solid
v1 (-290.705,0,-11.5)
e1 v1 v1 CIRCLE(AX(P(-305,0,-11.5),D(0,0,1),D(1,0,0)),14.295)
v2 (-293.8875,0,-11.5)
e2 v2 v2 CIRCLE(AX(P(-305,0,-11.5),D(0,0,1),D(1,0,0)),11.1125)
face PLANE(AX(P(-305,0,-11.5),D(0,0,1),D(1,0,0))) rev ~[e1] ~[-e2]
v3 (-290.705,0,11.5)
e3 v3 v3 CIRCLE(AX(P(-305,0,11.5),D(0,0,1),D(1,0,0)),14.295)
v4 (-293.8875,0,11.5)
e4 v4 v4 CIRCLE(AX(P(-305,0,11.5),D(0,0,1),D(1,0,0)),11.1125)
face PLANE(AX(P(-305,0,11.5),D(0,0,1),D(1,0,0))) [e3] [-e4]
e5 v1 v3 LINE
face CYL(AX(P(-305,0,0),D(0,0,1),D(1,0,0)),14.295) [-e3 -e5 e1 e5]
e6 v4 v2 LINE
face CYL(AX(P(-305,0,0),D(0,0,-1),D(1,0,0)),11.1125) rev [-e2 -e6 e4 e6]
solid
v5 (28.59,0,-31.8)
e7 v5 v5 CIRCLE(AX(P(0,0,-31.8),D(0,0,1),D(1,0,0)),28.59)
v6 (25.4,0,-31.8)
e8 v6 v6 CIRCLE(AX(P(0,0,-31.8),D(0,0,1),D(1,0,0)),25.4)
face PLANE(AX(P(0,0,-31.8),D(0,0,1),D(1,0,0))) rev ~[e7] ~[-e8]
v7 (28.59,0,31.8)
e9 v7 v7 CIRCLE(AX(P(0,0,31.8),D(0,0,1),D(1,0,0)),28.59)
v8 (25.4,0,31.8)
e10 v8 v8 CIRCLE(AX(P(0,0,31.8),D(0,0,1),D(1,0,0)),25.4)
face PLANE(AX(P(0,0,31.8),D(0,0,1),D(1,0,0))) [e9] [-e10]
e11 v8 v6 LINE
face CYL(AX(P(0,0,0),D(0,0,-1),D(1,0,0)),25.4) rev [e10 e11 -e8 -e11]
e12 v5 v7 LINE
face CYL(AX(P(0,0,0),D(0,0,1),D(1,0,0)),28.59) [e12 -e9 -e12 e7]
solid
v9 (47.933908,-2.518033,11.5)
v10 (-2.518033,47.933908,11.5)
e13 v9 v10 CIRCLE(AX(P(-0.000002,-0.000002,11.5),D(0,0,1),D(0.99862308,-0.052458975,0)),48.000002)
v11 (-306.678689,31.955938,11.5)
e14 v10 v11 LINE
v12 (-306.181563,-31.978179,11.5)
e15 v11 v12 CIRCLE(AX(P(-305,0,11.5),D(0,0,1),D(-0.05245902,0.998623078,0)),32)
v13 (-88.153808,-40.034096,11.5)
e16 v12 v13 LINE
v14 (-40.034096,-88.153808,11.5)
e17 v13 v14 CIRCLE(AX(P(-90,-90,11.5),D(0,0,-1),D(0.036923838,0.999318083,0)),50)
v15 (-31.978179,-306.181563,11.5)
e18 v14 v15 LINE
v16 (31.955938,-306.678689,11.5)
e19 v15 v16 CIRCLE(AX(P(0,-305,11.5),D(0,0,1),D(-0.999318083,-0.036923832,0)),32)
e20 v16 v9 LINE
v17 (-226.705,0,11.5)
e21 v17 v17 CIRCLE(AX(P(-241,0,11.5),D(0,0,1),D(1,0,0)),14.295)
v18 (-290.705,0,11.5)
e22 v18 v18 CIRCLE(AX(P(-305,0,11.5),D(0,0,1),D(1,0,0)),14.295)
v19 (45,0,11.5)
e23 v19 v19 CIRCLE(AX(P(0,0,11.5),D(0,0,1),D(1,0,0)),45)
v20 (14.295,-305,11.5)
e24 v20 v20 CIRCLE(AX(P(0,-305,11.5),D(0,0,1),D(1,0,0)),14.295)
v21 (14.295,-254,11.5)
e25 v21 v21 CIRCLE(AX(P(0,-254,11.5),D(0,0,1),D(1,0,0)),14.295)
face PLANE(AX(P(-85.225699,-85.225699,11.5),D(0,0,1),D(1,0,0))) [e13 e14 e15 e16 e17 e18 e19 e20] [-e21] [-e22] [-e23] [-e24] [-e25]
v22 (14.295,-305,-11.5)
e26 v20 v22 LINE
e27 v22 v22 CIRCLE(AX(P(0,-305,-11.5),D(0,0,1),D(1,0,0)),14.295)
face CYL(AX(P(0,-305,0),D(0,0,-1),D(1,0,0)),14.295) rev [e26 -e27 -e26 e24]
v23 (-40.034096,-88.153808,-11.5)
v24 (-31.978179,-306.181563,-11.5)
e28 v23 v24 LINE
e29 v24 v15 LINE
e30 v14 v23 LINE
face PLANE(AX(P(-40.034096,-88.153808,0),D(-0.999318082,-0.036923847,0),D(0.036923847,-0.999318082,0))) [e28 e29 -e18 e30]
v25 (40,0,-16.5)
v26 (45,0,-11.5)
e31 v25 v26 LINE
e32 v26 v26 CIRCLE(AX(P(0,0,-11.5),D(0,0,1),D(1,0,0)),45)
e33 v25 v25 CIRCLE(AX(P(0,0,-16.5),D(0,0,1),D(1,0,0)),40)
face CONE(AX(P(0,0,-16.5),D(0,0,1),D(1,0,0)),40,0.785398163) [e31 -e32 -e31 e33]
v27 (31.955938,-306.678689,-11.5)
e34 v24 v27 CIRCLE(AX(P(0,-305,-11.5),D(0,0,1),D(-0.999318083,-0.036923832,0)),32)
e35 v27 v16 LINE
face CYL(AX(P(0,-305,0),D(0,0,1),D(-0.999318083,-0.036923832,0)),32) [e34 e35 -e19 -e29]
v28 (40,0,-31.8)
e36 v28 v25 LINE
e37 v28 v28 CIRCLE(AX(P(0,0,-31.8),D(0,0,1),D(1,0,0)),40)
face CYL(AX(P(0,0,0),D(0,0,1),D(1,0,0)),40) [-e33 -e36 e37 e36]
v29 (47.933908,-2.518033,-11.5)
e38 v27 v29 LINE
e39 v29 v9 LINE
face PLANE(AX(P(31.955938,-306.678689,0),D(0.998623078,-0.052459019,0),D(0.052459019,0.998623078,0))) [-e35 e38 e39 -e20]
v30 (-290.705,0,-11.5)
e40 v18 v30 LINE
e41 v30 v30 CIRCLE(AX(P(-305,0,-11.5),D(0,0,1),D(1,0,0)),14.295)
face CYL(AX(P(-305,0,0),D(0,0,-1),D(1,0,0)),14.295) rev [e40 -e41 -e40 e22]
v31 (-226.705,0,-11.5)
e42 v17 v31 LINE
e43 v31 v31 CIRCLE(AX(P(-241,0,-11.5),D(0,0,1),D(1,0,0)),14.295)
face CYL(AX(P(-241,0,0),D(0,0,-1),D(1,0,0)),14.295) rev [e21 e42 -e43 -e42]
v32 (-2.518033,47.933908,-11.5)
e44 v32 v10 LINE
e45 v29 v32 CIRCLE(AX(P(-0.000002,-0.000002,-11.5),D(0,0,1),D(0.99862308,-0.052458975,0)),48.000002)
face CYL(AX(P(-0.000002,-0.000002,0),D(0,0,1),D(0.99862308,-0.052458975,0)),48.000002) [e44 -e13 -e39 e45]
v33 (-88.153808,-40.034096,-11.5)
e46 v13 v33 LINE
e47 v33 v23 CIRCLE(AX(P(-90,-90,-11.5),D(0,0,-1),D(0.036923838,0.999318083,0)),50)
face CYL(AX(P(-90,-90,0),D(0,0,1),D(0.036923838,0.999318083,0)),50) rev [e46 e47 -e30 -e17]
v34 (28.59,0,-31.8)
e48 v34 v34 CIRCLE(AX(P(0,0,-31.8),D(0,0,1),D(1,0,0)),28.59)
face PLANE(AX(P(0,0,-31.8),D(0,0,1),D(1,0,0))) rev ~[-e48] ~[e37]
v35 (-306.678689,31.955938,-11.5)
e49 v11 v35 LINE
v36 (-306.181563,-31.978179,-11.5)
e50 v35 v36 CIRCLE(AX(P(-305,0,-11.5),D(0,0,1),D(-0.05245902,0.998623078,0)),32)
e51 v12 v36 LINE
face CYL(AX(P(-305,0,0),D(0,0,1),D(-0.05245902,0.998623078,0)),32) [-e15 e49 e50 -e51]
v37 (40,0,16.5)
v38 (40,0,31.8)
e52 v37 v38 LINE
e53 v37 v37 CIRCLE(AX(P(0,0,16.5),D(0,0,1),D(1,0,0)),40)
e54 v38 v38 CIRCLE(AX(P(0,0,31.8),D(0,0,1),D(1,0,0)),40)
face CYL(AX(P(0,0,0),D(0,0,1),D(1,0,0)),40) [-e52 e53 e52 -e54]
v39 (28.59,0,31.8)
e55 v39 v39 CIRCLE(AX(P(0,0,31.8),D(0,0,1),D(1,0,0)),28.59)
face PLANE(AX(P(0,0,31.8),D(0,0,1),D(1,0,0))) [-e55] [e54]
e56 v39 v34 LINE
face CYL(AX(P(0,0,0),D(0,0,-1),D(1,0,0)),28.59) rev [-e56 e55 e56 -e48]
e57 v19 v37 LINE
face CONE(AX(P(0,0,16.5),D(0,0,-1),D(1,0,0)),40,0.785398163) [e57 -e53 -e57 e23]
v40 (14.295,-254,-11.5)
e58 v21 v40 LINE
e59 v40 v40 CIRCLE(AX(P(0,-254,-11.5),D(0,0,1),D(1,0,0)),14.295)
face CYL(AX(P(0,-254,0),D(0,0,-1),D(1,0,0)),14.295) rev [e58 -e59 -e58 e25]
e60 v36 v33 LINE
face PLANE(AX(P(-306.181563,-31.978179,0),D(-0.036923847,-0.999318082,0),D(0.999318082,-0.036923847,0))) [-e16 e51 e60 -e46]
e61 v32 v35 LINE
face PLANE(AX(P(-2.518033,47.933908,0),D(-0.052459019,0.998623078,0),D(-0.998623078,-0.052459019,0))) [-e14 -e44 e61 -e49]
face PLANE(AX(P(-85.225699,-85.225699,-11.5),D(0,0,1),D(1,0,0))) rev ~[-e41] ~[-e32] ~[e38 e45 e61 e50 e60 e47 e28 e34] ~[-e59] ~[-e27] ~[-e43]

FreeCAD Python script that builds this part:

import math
import FreeCAD as App
import Part
import Sketcher
Q = App.Units.Quantity


def edges_at(feature, points):
    """Names of the edges that pass closest to the given points."""
    edges = feature.Shape.Edges
    near = lambda p: min(range(len(edges)), key=lambda i: edges[i].distToShape(Part.Vertex(*p))[0])
    return sorted({f"Edge{near(p) + 1}" for p in points})

doc = App.newDocument("Part")
body = doc.addObject("PartDesign::Body", "Body")

sketch1 = body.newObject("Sketcher::SketchObject", "Sketch")
sketch1.AttachmentSupport = (doc.getObject("XY_Plane"), [""])
sketch1.MapMode = "FlatFace"
sketch1.addGeometry([
    Part.LineSegment(App.Vector(-40, -88, 0), App.Vector(-32, -306, 0)),
    Part.ArcOfCircle(Part.Circle(App.Vector(0, -305, 0), App.Vector(0, 0, 1), 32), math.radians(-178), math.radians(-3)),
    Part.LineSegment(App.Vector(32, -307, 0), App.Vector(48, -3, 0)),
    Part.ArcOfCircle(Part.Circle(App.Vector(0, 0, 0), App.Vector(0, 0, 1), 48), math.radians(-3), math.radians(93)),
    Part.LineSegment(App.Vector(-3, 48, 0), App.Vector(-307, 32, 0)),
    Part.ArcOfCircle(Part.Circle(App.Vector(-305, 0, 0), App.Vector(0, 0, 1), 32), math.radians(93), math.radians(268)),
    Part.LineSegment(App.Vector(-306, -32, 0), App.Vector(-88, -40, 0)),
    Part.ArcOfCircle(Part.Circle(App.Vector(-90, -90, 0), App.Vector(0, 0, 1), 50), math.radians(2), math.radians(88)),
    Part.Circle(App.Vector(0, -305, 0), App.Vector(0, 0, 1), 14),
    Part.Circle(App.Vector(0, -254, 0), App.Vector(0, 0, 1), 14),
    Part.Circle(App.Vector(-305, 0, 0), App.Vector(0, 0, 1), 14),
    Part.Circle(App.Vector(-241, 0, 0), App.Vector(0, 0, 1), 14),
    Part.Circle(App.Vector(0, 0, 0), App.Vector(0, 0, 1), 40),
], False)
sketch1.addConstraint([
    Sketcher.Constraint("Tangent", 0, 2, 1, 1),
    Sketcher.Constraint("Tangent", 1, 2, 2, 1),
    Sketcher.Constraint("Tangent", 2, 2, 3, 1),
    Sketcher.Constraint("Tangent", 3, 2, 4, 1),
    Sketcher.Constraint("Tangent", 4, 2, 5, 1),
    Sketcher.Constraint("Tangent", 5, 2, 6, 1),
    Sketcher.Constraint("Tangent", 6, 2, 7, 2),
    Sketcher.Constraint("Tangent", 7, 1, 0, 1),
    Sketcher.Constraint("Coincident", 3, 3, -1, 1),
    Sketcher.Constraint("Coincident", 12, 3, -1, 1),
    Sketcher.Constraint("Coincident", 8, 3, 1, 3),
    Sketcher.Constraint("Coincident", 10, 3, 5, 3),
    Sketcher.Constraint("Equal", 1, 5),
    Sketcher.Constraint("Equal", 8, 9),
    Sketcher.Constraint("Equal", 9, 10),
    Sketcher.Constraint("Equal", 10, 11),
    Sketcher.Constraint("PointOnObject", 1, 3, -2),
    Sketcher.Constraint("PointOnObject", 5, 3, -1),
    Sketcher.Constraint("PointOnObject", 9, 3, -2),
    Sketcher.Constraint("PointOnObject", 11, 3, -1),
    Sketcher.Constraint("Equal", 2, 4),
    Sketcher.Constraint("Equal", 0, 6),
    Sketcher.Constraint("Diameter", 12, Q("80 mm")),
    Sketcher.Constraint("Radius", 1, Q("32 mm")),
    Sketcher.Constraint("Radius", 7, Q("50 mm")),
    Sketcher.Constraint("Diameter", 8, Q("28.59 mm")),
    Sketcher.Constraint("DistanceY", 1, 3, -1, 1, Q("305 mm")),
    Sketcher.Constraint("DistanceX", 7, 3, -1, 1, Q("90 mm")),
    Sketcher.Constraint("DistanceY", 9, 3, -1, 1, Q("254 mm")),
    Sketcher.Constraint("DistanceX", 11, 3, -1, 1, Q("241 mm")),
    Sketcher.Constraint("Radius", 3, Q("48.000002 mm")),
])
pad1 = body.newObject("PartDesign::Pad", "Pad")
pad1.Profile = sketch1
pad1.Length = 23
pad1.Midplane = True

sketch2 = body.newObject("Sketcher::SketchObject", "Sketch001")
sketch2.AttachmentSupport = (doc.getObject("XY_Plane"), [""])
sketch2.MapMode = "FlatFace"
sketch2.addGeometry([
    Part.Circle(App.Vector(0, 0, 0), App.Vector(0, 0, 1), 40),
    Part.Circle(App.Vector(0, 0, 0), App.Vector(0, 0, 1), 29),
], False)
sketch2.addConstraint([
    Sketcher.Constraint("Coincident", 0, 3, -1, 1),
    Sketcher.Constraint("Coincident", 1, 3, -1, 1),
    Sketcher.Constraint("Diameter", 0, Q("80 mm")),
    Sketcher.Constraint("Diameter", 1, Q("57.18 mm")),
])
pad2 = body.newObject("PartDesign::Pad", "Pad001")
pad2.Profile = sketch2
pad2.Length = 63.6
pad2.Midplane = True
doc.recompute()

chamfer = body.newObject("PartDesign::Chamfer", "Chamfer")
chamfer.Base = (pad2, edges_at(pad2, [(-40, 0, -11.5), (-40, 0, 11.5)]))
chamfer.Size = 5
body2 = doc.addObject("PartDesign::Body", "Body001")

sketch3 = body2.newObject("Sketcher::SketchObject", "Sketch002")
sketch3.AttachmentSupport = (doc.getObject("XY_Plane001"), [""])
sketch3.MapMode = "FlatFace"
sketch3.addGeometry([
    Part.Circle(App.Vector(-305, 0, 0), App.Vector(0, 0, 1), 14),
    Part.Circle(App.Vector(-305, 0, 0), App.Vector(0, 0, 1), 11),
], False)
sketch3.addConstraint([
    Sketcher.Constraint("Coincident", 1, 3, 0, 3),
    Sketcher.Constraint("PointOnObject", 0, 3, -1),
    Sketcher.Constraint("Diameter", 0, Q("28.59 mm")),
    Sketcher.Constraint("Diameter", 1, Q("22.225 mm")),
    Sketcher.Constraint("DistanceX", 0, 3, -1, 1, Q("305 mm")),
])
pad3 = body2.newObject("PartDesign::Pad", "Pad002")
pad3.Profile = sketch3
pad3.Length = 23
pad3.Midplane = True
body3 = doc.addObject("PartDesign::Body", "Body002")

sketch4 = body3.newObject("Sketcher::SketchObject", "Sketch003")
sketch4.AttachmentSupport = (doc.getObject("XY_Plane002"), [""])
sketch4.MapMode = "FlatFace"
sketch4.addGeometry([
    Part.Circle(App.Vector(0, 0, 0), App.Vector(0, 0, 1), 29),
    Part.Circle(App.Vector(0, 0, 0), App.Vector(0, 0, 1), 25),
], False)
sketch4.addConstraint([
    Sketcher.Constraint("Coincident", 0, 3, -1, 1),
    Sketcher.Constraint("Coincident", 1, 3, -1, 1),
    Sketcher.Constraint("Diameter", 1, Q("50.8 mm")),
    Sketcher.Constraint("Diameter", 0, Q("57.18 mm")),
])
pad4 = body3.newObject("PartDesign::Pad", "Pad003")
pad4.Profile = sketch4
pad4.Length = 63.6
pad4.Midplane = True

doc.recompute()
